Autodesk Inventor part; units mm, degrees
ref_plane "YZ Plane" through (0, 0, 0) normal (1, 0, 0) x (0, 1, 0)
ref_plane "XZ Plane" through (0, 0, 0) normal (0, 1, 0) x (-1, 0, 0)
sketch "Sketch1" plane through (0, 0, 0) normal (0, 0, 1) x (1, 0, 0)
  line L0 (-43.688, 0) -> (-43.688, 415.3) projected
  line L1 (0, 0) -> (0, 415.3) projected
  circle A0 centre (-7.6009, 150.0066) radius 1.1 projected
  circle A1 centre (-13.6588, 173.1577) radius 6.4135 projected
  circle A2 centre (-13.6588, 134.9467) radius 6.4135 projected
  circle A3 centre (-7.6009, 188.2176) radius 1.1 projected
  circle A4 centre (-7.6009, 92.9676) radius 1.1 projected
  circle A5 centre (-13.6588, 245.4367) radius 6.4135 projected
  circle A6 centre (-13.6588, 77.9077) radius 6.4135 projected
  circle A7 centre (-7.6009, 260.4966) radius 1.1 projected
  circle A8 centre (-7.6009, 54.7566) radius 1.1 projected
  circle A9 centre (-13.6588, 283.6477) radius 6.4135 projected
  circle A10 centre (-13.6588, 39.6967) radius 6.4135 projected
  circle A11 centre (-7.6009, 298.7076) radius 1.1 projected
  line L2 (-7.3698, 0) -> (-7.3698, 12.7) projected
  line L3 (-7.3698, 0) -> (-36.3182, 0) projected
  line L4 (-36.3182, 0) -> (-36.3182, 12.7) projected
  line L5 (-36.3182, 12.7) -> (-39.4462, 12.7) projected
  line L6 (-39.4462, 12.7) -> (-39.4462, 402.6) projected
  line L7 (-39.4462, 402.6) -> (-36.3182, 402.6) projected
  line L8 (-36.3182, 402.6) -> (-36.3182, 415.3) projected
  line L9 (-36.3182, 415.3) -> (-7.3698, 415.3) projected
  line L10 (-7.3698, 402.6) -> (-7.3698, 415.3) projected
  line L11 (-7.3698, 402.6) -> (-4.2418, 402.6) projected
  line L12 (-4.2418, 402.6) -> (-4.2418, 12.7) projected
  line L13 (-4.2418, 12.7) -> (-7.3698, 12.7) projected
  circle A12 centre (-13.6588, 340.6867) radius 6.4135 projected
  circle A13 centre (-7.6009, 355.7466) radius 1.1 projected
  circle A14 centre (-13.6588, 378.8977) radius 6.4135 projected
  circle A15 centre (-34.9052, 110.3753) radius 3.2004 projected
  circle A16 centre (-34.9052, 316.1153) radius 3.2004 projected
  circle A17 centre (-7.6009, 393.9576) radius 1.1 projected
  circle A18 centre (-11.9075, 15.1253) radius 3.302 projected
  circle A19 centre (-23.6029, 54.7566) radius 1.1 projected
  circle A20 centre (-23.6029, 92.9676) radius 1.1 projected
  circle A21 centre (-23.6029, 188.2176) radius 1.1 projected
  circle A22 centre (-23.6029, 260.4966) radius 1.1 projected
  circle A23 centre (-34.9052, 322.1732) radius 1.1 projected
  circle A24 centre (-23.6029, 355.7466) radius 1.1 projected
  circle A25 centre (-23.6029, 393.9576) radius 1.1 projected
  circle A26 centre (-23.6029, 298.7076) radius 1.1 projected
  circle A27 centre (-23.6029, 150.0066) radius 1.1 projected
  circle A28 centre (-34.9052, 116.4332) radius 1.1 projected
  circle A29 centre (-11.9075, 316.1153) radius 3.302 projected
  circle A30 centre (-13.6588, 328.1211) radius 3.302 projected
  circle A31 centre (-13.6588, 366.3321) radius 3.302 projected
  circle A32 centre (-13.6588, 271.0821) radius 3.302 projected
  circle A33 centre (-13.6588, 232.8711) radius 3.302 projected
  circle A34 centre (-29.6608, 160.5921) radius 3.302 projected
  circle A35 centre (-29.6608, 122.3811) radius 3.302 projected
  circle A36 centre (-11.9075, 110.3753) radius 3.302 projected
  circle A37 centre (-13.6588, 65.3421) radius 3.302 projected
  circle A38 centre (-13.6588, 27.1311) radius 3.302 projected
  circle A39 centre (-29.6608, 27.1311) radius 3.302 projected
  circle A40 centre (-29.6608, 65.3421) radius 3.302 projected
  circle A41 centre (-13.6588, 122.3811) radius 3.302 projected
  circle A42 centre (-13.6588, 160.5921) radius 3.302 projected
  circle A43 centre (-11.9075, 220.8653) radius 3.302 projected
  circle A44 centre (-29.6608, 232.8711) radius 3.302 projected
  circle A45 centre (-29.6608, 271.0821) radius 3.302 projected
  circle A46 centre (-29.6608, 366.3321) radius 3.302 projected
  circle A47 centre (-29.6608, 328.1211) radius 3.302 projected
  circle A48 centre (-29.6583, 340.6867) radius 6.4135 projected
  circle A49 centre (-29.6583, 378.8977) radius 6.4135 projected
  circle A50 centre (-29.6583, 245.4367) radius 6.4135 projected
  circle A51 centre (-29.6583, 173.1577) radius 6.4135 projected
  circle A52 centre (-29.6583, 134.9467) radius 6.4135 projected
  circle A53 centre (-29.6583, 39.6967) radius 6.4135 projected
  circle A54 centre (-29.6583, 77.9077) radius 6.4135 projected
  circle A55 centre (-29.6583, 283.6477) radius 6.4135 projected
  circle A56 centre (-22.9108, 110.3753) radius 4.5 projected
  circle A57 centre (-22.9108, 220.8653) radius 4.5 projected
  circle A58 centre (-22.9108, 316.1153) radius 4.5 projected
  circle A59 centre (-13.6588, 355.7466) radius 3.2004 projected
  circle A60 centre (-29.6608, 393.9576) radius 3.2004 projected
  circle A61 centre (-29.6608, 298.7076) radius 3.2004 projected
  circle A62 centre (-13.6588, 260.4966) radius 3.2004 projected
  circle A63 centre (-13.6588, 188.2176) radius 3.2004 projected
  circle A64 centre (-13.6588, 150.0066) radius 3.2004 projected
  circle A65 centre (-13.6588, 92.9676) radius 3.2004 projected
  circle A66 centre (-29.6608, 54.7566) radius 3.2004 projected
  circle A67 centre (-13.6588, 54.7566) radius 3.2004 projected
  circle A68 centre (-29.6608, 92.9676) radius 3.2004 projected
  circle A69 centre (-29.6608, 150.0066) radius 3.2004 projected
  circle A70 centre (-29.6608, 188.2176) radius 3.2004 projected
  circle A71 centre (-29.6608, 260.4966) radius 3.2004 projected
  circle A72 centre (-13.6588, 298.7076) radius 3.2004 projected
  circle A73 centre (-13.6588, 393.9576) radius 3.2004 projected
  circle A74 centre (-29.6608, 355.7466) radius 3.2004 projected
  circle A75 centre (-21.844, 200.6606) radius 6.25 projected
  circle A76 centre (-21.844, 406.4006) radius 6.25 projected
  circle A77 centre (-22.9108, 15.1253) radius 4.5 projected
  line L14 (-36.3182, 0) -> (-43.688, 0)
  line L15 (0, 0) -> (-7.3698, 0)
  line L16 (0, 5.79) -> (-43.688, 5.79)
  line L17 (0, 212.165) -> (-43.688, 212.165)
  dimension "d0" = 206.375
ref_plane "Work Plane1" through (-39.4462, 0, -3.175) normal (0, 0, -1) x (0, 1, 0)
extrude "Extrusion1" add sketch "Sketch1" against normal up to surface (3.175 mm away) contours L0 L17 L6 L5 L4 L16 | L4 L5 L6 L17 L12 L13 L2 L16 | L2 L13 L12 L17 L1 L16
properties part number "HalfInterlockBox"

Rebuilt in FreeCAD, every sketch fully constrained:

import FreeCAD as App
import Part
import Sketcher
from FreeCAD import Vector
Q = App.Units.Quantity


def add_polygon(sketch, points):
    """Adds a closed chain of lines whose ends are joined by coincident constraints."""
    first, n = sketch.GeometryCount, len(points)
    for a, b in zip(points, points[1:] + points[:1]):
        sketch.addGeometry(Part.LineSegment(App.Vector(*a, 0), App.Vector(*b, 0)), False)
    for i in range(n):
        sketch.addConstraint(Sketcher.Constraint("Coincident", first + i, 2, first + (i + 1) % n, 1))

doc = App.newDocument("Part")
params = doc.addObject("Spreadsheet::Sheet", "Params")
for row, (alias, value) in enumerate([
    ("sketch1_diameter", "0.26 in"),
    ("sketch1_height", "8.125 in"),
    ("sketch1_diameter2", "0.252 in"),
    ("sketch1_diameter3", "0.505 in"),
    ("sketch1_width", "1.72 in"),
    ("pad1_length", "0.125 in"),
], start=1):
    params.set(f"A{row}", alias)
    params.set(f"B{row}", "=" + value)
    params.setAlias(f"B{row}", alias)

body = doc.addObject("PartDesign::Body", "Body")

sketch1 = body.newObject("Sketcher::SketchObject", "Sketch")
sketch1.AttachmentSupport = (doc.getObject("XY_Plane"), [""])
sketch1.MapMode = "FlatFace"
add_polygon(sketch1, [(-43.7, 212.2), (-43.7, 5.8), (0, 5.8), (0, 212.2)])
sketch1.addGeometry(Part.Circle(Vector(-13.7, 188.2, 0), Vector(0, 0, 1), 3.2), False)
sketch1.addGeometry(Part.Circle(Vector(-7.6, 150, 0), Vector(0, 0, 1), 1.1), False)
sketch1.addGeometry(Part.Circle(Vector(-7.6, 188.2, 0), Vector(0, 0, 1), 1.1), False)
sketch1.addGeometry(Part.Circle(Vector(-29.7, 27.1, 0), Vector(0, 0, 1), 3.3), False)
sketch1.addGeometry(Part.Circle(Vector(-29.7, 39.7, 0), Vector(0, 0, 1), 6.4), False)
sketch1.addGeometry(Part.Circle(Vector(-22.9, 15.1, 0), Vector(0, 0, 1), 4.5), False)
sketch1.addGeometry(Part.Circle(Vector(-29.7, 54.8, 0), Vector(0, 0, 1), 3.2), False)
sketch1.addGeometry(Part.Circle(Vector(-29.7, 65.3, 0), Vector(0, 0, 1), 3.3), False)
sketch1.addGeometry(Part.Circle(Vector(-29.7, 77.9, 0), Vector(0, 0, 1), 6.4), False)
sketch1.addGeometry(Part.Circle(Vector(-29.7, 93, 0), Vector(0, 0, 1), 3.2), False)
sketch1.addGeometry(Part.Circle(Vector(-23.6, 54.8, 0), Vector(0, 0, 1), 1.1), False)
sketch1.addGeometry(Part.Circle(Vector(-23.6, 93, 0), Vector(0, 0, 1), 1.1), False)
sketch1.addGeometry(Part.Circle(Vector(-34.9, 110.4, 0), Vector(0, 0, 1), 3.2), False)
sketch1.addGeometry(Part.Circle(Vector(-34.9, 116.4, 0), Vector(0, 0, 1), 1.1), False)
sketch1.addGeometry(Part.Circle(Vector(-29.7, 122.4, 0), Vector(0, 0, 1), 3.3), False)
sketch1.addGeometry(Part.Circle(Vector(-29.7, 134.9, 0), Vector(0, 0, 1), 6.4), False)
sketch1.addGeometry(Part.Circle(Vector(-29.7, 150, 0), Vector(0, 0, 1), 3.2), False)
sketch1.addGeometry(Part.Circle(Vector(-22.9, 110.4, 0), Vector(0, 0, 1), 4.5), False)
sketch1.addGeometry(Part.Circle(Vector(-23.6, 150, 0), Vector(0, 0, 1), 1.1), False)
sketch1.addGeometry(Part.Circle(Vector(-29.7, 160.6, 0), Vector(0, 0, 1), 3.3), False)
sketch1.addGeometry(Part.Circle(Vector(-29.7, 173.2, 0), Vector(0, 0, 1), 6.4), False)
sketch1.addGeometry(Part.Circle(Vector(-29.7, 188.2, 0), Vector(0, 0, 1), 3.2), False)
sketch1.addGeometry(Part.Circle(Vector(-23.6, 188.2, 0), Vector(0, 0, 1), 1.1), False)
sketch1.addGeometry(Part.Circle(Vector(-11.9, 15.1, 0), Vector(0, 0, 1), 3.3), False)
sketch1.addGeometry(Part.Circle(Vector(-13.7, 27.1, 0), Vector(0, 0, 1), 3.3), False)
sketch1.addGeometry(Part.Circle(Vector(-13.7, 39.7, 0), Vector(0, 0, 1), 6.4), False)
sketch1.addGeometry(Part.Circle(Vector(-13.7, 54.8, 0), Vector(0, 0, 1), 3.2), False)
sketch1.addGeometry(Part.Circle(Vector(-13.7, 65.3, 0), Vector(0, 0, 1), 3.3), False)
sketch1.addGeometry(Part.Circle(Vector(-13.7, 77.9, 0), Vector(0, 0, 1), 6.4), False)
sketch1.addGeometry(Part.Circle(Vector(-13.7, 93, 0), Vector(0, 0, 1), 3.2), False)
sketch1.addGeometry(Part.Circle(Vector(-7.6, 54.8, 0), Vector(0, 0, 1), 1.1), False)
sketch1.addGeometry(Part.Circle(Vector(-7.6, 93, 0), Vector(0, 0, 1), 1.1), False)
sketch1.addGeometry(Part.Circle(Vector(-13.7, 122.4, 0), Vector(0, 0, 1), 3.3), False)
sketch1.addGeometry(Part.Circle(Vector(-11.9, 110.4, 0), Vector(0, 0, 1), 3.3), False)
sketch1.addGeometry(Part.Circle(Vector(-13.7, 134.9, 0), Vector(0, 0, 1), 6.4), False)
sketch1.addGeometry(Part.Circle(Vector(-13.7, 150, 0), Vector(0, 0, 1), 3.2), False)
sketch1.addGeometry(Part.Circle(Vector(-21.8, 200.7, 0), Vector(0, 0, 1), 6.2), False)
sketch1.addGeometry(Part.Circle(Vector(-13.7, 160.6, 0), Vector(0, 0, 1), 3.3), False)
sketch1.addGeometry(Part.Circle(Vector(-13.7, 173.2, 0), Vector(0, 0, 1), 6.4), False)
sketch1.addConstraint(Sketcher.Constraint("Vertical", 0))
sketch1.addConstraint(Sketcher.Constraint("Horizontal", 1))
sketch1.addConstraint(Sketcher.Constraint("Vertical", 2))
sketch1.addConstraint(Sketcher.Constraint("Horizontal", 3))
sketch1.addConstraint(Sketcher.Constraint("Equal", 5, 6))
sketch1.addConstraint(Sketcher.Constraint("Equal", 4, 10))
sketch1.addConstraint(Sketcher.Constraint("Equal", 7, 11))
sketch1.addConstraint(Sketcher.Constraint("Equal", 8, 12))
sketch1.addConstraint(Sketcher.Constraint("Equal", 10, 13))
sketch1.addConstraint(Sketcher.Constraint("Equal", 6, 14))
sketch1.addConstraint(Sketcher.Constraint("Equal", 14, 15))
sketch1.addConstraint(Sketcher.Constraint("Equal", 13, 16))
sketch1.addConstraint(Sketcher.Constraint("Equal", 15, 17))
sketch1.addConstraint(Sketcher.Constraint("Equal", 11, 18))
sketch1.addConstraint(Sketcher.Constraint("Equal", 12, 19))
sketch1.addConstraint(Sketcher.Constraint("Equal", 16, 20))
sketch1.addConstraint(Sketcher.Constraint("Equal", 9, 21))
sketch1.addConstraint(Sketcher.Constraint("Equal", 17, 22))
sketch1.addConstraint(Sketcher.Constraint("Equal", 18, 23))
sketch1.addConstraint(Sketcher.Constraint("Equal", 19, 24))
sketch1.addConstraint(Sketcher.Constraint("Equal", 20, 25))
sketch1.addConstraint(Sketcher.Constraint("Equal", 22, 26))
sketch1.addConstraint(Sketcher.Constraint("Equal", 23, 27))
sketch1.addConstraint(Sketcher.Constraint("Equal", 27, 28))
sketch1.addConstraint(Sketcher.Constraint("Equal", 24, 29))
sketch1.addConstraint(Sketcher.Constraint("Equal", 25, 30))
sketch1.addConstraint(Sketcher.Constraint("Equal", 28, 31))
sketch1.addConstraint(Sketcher.Constraint("Equal", 29, 32))
sketch1.addConstraint(Sketcher.Constraint("Equal", 30, 33))
sketch1.addConstraint(Sketcher.Constraint("Equal", 26, 34))
sketch1.addConstraint(Sketcher.Constraint("Equal", 34, 35))
sketch1.addConstraint(Sketcher.Constraint("Equal", 31, 36))
sketch1.addConstraint(Sketcher.Constraint("Equal", 36, 37))
sketch1.addConstraint(Sketcher.Constraint("Equal", 32, 38))
sketch1.addConstraint(Sketcher.Constraint("Equal", 33, 39))
sketch1.addConstraint(Sketcher.Constraint("Equal", 37, 41))
sketch1.addConstraint(Sketcher.Constraint("Equal", 38, 42))
sketch1.addConstraint(Sketcher.Constraint("PointOnObject", 1, 2, -2))
sketch1.addConstraint(Sketcher.Constraint("Horizontal", 4, 3, 6, 3))
sketch1.addConstraint(Sketcher.Constraint("Horizontal", 10, 3, 14, 3))
sketch1.addConstraint(Sketcher.Constraint("Horizontal", 13, 3, 15, 3))
sketch1.addConstraint(Sketcher.Constraint("Horizontal", 5, 3, 20, 3))
sketch1.addConstraint(Sketcher.Constraint("Horizontal", 16, 3, 21, 3))
sketch1.addConstraint(Sketcher.Constraint("Horizontal", 20, 3, 22, 3))
sketch1.addConstraint(Sketcher.Constraint("Horizontal", 6, 3, 25, 3))
sketch1.addConstraint(Sketcher.Constraint("Horizontal", 25, 3, 26, 3))
sketch1.addConstraint(Sketcher.Constraint("Horizontal", 9, 3, 27, 3))
sketch1.addConstraint(Sketcher.Constraint("Horizontal", 7, 3, 28, 3))
sketch1.addConstraint(Sketcher.Constraint("Horizontal", 8, 3, 29, 3))
sketch1.addConstraint(Sketcher.Constraint("Horizontal", 14, 3, 30, 3))
sketch1.addConstraint(Sketcher.Constraint("Horizontal", 11, 3, 31, 3))
sketch1.addConstraint(Sketcher.Constraint("Horizontal", 12, 3, 32, 3))
sketch1.addConstraint(Sketcher.Constraint("Horizontal", 15, 3, 33, 3))
sketch1.addConstraint(Sketcher.Constraint("Horizontal", 30, 3, 34, 3))
sketch1.addConstraint(Sketcher.Constraint("Horizontal", 33, 3, 35, 3))
sketch1.addConstraint(Sketcher.Constraint("Horizontal", 18, 3, 36, 3))
sketch1.addConstraint(Sketcher.Constraint("Horizontal", 21, 3, 37, 3))
sketch1.addConstraint(Sketcher.Constraint("Horizontal", 19, 3, 38, 3))
sketch1.addConstraint(Sketcher.Constraint("Horizontal", 22, 3, 39, 3))
sketch1.addConstraint(Sketcher.Constraint("Horizontal", 23, 3, 41, 3))
sketch1.addConstraint(Sketcher.Constraint("Horizontal", 24, 3, 42, 3))
sketch1.addConstraint(Sketcher.Constraint("Vertical", 5, 3, 6, 3))
sketch1.addConstraint(Sketcher.Constraint("Vertical", 7, 3, 10, 3))
sketch1.addConstraint(Sketcher.Constraint("Vertical", 10, 3, 11, 3))
sketch1.addConstraint(Sketcher.Constraint("Vertical", 8, 3, 12, 3))
sketch1.addConstraint(Sketcher.Constraint("Vertical", 11, 3, 13, 3))
sketch1.addConstraint(Sketcher.Constraint("Vertical", 14, 3, 15, 3))
sketch1.addConstraint(Sketcher.Constraint("Vertical", 16, 3, 17, 3))
sketch1.addConstraint(Sketcher.Constraint("Vertical", 13, 3, 18, 3))
sketch1.addConstraint(Sketcher.Constraint("Vertical", 12, 3, 19, 3))
sketch1.addConstraint(Sketcher.Constraint("Vertical", 18, 3, 20, 3))
sketch1.addConstraint(Sketcher.Constraint("Vertical", 9, 3, 21, 3))
sketch1.addConstraint(Sketcher.Constraint("Vertical", 15, 3, 22, 3))
sketch1.addConstraint(Sketcher.Constraint("Vertical", 20, 3, 23, 3))
sketch1.addConstraint(Sketcher.Constraint("Vertical", 19, 3, 24, 3))
sketch1.addConstraint(Sketcher.Constraint("Vertical", 23, 3, 25, 3))
sketch1.addConstraint(Sketcher.Constraint("Vertical", 22, 3, 26, 3))
sketch1.addConstraint(Sketcher.Constraint("Vertical", 4, 3, 28, 3))
sketch1.addConstraint(Sketcher.Constraint("Vertical", 28, 3, 29, 3))
sketch1.addConstraint(Sketcher.Constraint("Vertical", 29, 3, 30, 3))
sketch1.addConstraint(Sketcher.Constraint("Vertical", 30, 3, 31, 3))
sketch1.addConstraint(Sketcher.Constraint("Vertical", 31, 3, 32, 3))
sketch1.addConstraint(Sketcher.Constraint("Vertical", 32, 3, 33, 3))
sketch1.addConstraint(Sketcher.Constraint("Vertical", 6, 3, 34, 3))
sketch1.addConstraint(Sketcher.Constraint("Vertical", 34, 3, 35, 3))
sketch1.addConstraint(Sketcher.Constraint("Vertical", 33, 3, 36, 3))
sketch1.addConstraint(Sketcher.Constraint("Vertical", 27, 3, 37, 3))
sketch1.addConstraint(Sketcher.Constraint("Vertical", 36, 3, 38, 3))
sketch1.addConstraint(Sketcher.Constraint("Vertical", 38, 3, 39, 3))
sketch1.addConstraint(Sketcher.Constraint("Vertical", 39, 3, 41, 3))
sketch1.addConstraint(Sketcher.Constraint("Vertical", 41, 3, 42, 3))
sketch1.addConstraint(Sketcher.Constraint("Diameter", 7, Q("0.26 in")))
sketch1.addConstraint(Sketcher.Constraint("DistanceY", 0, 2, 0, 1, Q("8.125 in")))
sketch1.addConstraint(Sketcher.Constraint("Diameter", 4, Q("0.252 in")))
sketch1.addConstraint(Sketcher.Constraint("Diameter", 8, Q("0.505 in")))
sketch1.addConstraint(Sketcher.Constraint("DistanceX", 1, 1, 1, 2, Q("1.72 in")))
sketch1.addConstraint(Sketcher.Constraint("Diameter", 5, 2.2))
sketch1.addConstraint(Sketcher.Constraint("Diameter", 9, 9.0))
sketch1.addConstraint(Sketcher.Constraint("Diameter", 40, 12.5))
sketch1.addConstraint(Sketcher.Constraint("DistanceX", 40, 3, -1, 1, Q("0.86 in")))
sketch1.addConstraint(Sketcher.Constraint("DistanceX", 7, 3, 4, 3, Q("0.63 in")))
sketch1.addConstraint(Sketcher.Constraint("DistanceY", 10, 3, 5, 3, Q("3.75 in")))
sketch1.addConstraint(Sketcher.Constraint("DistanceX", 22, 3, 5, 3, Q("0.63 in")))
sketch1.addConstraint(Sketcher.Constraint("DistanceX", 9, 3, -1, 1, Q("0.902 in")))
sketch1.addConstraint(Sketcher.Constraint("DistanceY", 7, 3, 4, 3, Q("6.342 in")))
sketch1.addConstraint(Sketcher.Constraint("DistanceY", 13, 3, 18, 3, Q("1.158 in")))
sketch1.addConstraint(Sketcher.Constraint("DistanceX", 27, 3, -1, 1, Q("0.4688 in")))
sketch1.addConstraint(Sketcher.Constraint("DistanceX", 4, 3, 5, 3, Q("0.2385 in")))
sketch1.addConstraint(Sketcher.Constraint("DistanceX", 7, 3, 8, 3, Q("0.0001 in")))
sketch1.addConstraint(Sketcher.Constraint("DistanceY", 7, 3, 8, 3, Q("0.4947 in")))
sketch1.addConstraint(Sketcher.Constraint("DistanceY", 8, 3, 5, 3, Q("4.3429 in")))
sketch1.addConstraint(Sketcher.Constraint("DistanceY", 11, 3, 12, 3, Q("0.4947 in")))
sketch1.addConstraint(Sketcher.Constraint("DistanceY", 12, 3, 13, 3, Q("0.5929 in")))
sketch1.addConstraint(Sketcher.Constraint("DistanceY", 16, 3, 17, 3, Q("0.2385 in")))
sketch1.addConstraint(Sketcher.Constraint("DistanceY", 18, 3, 19, 3, Q("0.4947 in")))
sketch1.addConstraint(Sketcher.Constraint("DistanceY", 19, 3, 5, 3, Q("0.5929 in")))
sketch1.addConstraint(Sketcher.Constraint("DistanceY", 23, 3, 24, 3, Q("0.4947 in")))
sketch1.addConstraint(Sketcher.Constraint("DistanceY", 24, 3, 4, 3, Q("0.5929 in")))
sketch1.addConstraint(Sketcher.Constraint("DistanceY", 24, 3, 40, 3, Q("1.0828 in")))
sketch1.addConstraint(Sketcher.Constraint("DistanceY", 0, 2, 7, 3, Q("0.8402 in")))
sketch1.addConstraint(Sketcher.Constraint("DistanceX", 4, 3, -1, 1, 13.6588))
sketch1.addConstraint(Sketcher.Constraint("DistanceY", -1, 1, 4, 3, 188.2176))
sketch1.addConstraint(Sketcher.Constraint("DistanceY", -1, 1, 9, 3, 15.1253))
sketch1.addConstraint(Sketcher.Constraint("DistanceX", 16, 3, -1, 1, 34.9052))
sketch1.addConstraint(Sketcher.Constraint("DistanceY", -1, 1, 16, 3, 110.3753))
sketch1.setExpression("Constraints[95]", "Params.sketch1_diameter")
sketch1.setExpression("Constraints[96]", "Params.sketch1_height")
sketch1.setExpression("Constraints[97]", "Params.sketch1_diameter2")
sketch1.setExpression("Constraints[98]", "Params.sketch1_diameter3")
sketch1.setExpression("Constraints[99]", "Params.sketch1_width")
pad1 = body.newObject("PartDesign::Pad", "Pad")
pad1.Profile = sketch1
pad1.setExpression("Length", "Params.pad1_length")
pad1.Reversed = True

doc.recompute()
